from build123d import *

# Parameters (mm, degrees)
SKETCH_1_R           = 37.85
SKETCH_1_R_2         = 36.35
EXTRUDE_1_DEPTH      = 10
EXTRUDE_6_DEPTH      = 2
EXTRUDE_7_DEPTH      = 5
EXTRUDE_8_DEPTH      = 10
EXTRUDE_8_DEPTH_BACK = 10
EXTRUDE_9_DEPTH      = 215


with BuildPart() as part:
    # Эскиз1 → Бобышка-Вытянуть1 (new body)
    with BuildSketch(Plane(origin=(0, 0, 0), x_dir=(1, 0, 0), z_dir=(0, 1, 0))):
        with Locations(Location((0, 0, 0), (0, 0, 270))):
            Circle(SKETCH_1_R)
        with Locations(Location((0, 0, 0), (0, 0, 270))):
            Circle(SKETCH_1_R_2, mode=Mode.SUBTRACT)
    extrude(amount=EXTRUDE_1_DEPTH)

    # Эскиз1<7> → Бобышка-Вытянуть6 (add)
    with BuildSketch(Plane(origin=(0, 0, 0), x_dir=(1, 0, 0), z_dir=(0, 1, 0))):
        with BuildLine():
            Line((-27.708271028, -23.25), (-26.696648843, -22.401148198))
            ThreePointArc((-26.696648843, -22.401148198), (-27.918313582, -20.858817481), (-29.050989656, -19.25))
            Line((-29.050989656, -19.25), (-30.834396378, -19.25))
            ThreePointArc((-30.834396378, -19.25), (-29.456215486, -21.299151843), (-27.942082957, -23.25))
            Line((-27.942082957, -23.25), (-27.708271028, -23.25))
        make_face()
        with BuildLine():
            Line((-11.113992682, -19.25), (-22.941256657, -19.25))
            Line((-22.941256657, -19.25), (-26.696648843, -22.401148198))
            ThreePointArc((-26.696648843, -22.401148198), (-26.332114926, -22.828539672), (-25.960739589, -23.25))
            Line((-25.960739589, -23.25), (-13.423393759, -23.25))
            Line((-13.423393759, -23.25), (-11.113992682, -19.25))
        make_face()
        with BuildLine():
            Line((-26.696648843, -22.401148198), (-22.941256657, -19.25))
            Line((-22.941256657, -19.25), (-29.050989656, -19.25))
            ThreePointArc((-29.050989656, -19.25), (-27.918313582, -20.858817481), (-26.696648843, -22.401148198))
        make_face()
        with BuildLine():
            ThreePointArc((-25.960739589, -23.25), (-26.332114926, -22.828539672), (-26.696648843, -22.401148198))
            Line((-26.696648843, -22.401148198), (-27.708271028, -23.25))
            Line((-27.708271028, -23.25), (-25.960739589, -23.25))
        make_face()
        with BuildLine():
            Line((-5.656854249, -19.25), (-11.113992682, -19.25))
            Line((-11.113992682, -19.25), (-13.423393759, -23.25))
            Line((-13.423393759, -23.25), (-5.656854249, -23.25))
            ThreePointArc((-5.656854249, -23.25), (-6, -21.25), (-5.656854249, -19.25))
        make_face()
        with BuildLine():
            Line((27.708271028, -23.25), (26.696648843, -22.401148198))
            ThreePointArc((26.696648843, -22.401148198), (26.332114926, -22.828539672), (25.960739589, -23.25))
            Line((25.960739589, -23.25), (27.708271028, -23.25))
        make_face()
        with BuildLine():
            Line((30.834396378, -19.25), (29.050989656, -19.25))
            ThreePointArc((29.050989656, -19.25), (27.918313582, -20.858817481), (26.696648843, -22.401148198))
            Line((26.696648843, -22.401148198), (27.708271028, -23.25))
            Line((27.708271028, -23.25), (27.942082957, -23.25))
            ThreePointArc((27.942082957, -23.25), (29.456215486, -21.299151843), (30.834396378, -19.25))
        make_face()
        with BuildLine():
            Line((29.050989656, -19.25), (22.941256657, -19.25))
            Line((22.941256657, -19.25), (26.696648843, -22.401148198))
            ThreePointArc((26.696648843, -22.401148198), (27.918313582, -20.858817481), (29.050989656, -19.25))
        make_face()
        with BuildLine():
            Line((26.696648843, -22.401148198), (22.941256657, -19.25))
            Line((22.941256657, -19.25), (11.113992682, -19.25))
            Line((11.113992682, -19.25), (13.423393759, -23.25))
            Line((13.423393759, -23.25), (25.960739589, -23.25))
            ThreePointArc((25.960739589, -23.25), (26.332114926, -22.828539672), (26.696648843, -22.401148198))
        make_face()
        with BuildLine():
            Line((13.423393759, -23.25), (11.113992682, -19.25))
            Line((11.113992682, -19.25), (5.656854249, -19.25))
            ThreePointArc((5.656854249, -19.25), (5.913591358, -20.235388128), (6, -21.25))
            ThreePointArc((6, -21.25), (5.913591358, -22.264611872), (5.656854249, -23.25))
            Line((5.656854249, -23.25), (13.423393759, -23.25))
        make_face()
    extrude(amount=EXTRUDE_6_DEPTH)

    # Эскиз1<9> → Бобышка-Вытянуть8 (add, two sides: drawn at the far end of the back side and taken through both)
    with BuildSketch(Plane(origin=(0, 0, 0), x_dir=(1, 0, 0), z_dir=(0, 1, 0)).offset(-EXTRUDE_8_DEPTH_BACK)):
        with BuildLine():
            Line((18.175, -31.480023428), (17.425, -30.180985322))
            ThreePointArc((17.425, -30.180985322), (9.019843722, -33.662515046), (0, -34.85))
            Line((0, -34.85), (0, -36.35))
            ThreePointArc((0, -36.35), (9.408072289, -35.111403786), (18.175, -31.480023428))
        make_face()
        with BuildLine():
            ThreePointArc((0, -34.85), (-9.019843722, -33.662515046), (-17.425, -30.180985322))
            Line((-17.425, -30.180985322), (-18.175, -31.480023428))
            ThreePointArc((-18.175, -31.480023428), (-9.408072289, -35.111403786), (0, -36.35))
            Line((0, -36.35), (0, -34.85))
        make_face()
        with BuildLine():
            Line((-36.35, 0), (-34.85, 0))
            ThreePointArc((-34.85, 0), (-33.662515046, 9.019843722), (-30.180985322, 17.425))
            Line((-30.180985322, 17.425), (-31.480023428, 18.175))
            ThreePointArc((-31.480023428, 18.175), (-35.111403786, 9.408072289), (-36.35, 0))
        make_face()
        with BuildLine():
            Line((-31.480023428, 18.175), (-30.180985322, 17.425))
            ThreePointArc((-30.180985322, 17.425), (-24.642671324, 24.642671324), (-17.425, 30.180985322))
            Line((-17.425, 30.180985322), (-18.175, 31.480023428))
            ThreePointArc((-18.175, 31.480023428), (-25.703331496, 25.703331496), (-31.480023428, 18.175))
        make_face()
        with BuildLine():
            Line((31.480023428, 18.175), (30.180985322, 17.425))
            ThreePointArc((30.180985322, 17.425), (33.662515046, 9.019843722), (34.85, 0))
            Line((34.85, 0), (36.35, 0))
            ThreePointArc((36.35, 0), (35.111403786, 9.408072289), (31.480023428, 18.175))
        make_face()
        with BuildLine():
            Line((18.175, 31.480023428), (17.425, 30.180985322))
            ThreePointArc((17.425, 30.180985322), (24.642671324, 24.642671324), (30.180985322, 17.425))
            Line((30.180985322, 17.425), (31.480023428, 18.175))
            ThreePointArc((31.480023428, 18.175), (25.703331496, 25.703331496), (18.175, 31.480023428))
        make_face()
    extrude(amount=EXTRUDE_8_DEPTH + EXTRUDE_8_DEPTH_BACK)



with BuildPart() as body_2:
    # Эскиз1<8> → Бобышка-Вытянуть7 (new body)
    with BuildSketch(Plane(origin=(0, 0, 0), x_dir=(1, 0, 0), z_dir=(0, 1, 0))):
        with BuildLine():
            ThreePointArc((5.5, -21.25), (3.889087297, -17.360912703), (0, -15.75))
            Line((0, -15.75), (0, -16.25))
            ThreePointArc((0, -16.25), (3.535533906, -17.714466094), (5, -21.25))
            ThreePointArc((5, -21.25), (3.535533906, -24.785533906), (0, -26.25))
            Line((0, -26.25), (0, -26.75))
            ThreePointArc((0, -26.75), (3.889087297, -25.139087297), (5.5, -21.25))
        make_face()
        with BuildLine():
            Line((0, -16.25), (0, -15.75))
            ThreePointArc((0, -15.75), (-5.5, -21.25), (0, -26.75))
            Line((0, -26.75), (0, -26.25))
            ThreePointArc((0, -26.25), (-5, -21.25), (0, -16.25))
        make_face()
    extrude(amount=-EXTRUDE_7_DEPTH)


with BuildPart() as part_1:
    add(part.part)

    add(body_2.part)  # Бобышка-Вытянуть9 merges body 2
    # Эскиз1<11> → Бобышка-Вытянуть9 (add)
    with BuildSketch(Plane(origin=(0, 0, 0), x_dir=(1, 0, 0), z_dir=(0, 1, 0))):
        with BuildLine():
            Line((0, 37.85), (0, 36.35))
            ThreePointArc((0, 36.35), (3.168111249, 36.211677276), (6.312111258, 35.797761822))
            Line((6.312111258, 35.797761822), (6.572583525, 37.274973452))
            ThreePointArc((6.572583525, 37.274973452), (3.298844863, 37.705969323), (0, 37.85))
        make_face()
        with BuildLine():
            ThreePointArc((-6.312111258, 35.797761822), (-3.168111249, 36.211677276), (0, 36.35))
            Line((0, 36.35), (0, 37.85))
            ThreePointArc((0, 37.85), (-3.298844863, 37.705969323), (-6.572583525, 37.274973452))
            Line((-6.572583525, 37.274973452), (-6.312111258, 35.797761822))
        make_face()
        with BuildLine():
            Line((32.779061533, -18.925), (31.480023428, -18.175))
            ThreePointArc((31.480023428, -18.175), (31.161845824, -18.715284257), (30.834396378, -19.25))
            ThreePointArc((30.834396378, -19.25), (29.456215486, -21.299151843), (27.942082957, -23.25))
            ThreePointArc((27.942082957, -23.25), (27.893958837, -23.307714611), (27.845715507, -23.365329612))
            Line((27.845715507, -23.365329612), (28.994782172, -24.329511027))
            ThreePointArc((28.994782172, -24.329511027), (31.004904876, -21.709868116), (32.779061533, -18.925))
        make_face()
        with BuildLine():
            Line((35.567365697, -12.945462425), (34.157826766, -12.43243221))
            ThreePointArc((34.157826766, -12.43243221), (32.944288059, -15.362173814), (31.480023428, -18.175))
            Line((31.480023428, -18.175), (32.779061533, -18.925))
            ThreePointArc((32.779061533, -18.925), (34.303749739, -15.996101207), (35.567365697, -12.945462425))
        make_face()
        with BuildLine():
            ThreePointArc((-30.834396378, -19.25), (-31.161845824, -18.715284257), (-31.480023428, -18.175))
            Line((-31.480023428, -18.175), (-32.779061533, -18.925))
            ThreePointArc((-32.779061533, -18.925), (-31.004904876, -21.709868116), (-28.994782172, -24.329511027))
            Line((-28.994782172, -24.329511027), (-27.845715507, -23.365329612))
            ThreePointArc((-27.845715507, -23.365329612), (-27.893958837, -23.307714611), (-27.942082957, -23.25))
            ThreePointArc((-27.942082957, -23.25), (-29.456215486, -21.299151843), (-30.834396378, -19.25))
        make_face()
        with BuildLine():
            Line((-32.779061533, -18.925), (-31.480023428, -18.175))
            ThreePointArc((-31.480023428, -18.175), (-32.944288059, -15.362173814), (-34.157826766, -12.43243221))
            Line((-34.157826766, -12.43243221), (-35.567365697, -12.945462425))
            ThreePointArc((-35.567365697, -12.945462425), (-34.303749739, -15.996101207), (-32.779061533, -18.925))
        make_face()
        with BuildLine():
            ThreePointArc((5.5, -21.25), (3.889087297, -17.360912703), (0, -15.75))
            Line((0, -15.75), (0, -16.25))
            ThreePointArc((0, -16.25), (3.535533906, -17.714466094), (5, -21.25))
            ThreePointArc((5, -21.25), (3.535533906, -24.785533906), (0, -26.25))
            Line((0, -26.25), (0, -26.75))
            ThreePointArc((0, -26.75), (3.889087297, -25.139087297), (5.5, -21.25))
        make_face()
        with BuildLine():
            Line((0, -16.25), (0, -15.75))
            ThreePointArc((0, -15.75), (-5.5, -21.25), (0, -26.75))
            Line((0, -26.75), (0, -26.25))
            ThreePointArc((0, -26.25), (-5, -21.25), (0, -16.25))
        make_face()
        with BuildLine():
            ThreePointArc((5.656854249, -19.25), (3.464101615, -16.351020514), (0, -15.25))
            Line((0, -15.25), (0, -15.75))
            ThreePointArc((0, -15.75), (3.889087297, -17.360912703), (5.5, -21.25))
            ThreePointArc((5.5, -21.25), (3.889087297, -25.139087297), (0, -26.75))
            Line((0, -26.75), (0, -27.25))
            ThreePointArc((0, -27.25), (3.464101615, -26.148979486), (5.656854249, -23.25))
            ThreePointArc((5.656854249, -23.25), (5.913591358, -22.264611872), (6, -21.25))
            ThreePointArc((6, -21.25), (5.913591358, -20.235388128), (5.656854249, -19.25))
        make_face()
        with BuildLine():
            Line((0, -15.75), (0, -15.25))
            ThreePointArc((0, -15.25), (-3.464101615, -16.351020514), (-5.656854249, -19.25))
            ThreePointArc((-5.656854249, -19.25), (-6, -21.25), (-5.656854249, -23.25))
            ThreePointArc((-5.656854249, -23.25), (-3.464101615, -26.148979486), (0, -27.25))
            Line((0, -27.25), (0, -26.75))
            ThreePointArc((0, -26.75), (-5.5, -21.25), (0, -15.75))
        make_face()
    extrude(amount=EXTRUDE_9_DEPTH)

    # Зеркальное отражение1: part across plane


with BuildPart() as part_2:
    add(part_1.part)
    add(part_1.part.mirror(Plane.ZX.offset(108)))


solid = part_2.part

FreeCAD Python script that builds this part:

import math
import FreeCAD as App
import Part
import Sketcher
from FreeCAD import Vector
Q = App.Units.Quantity

doc = App.newDocument("Part")
body = doc.addObject("PartDesign::Body", "Body")

# Sketch on XZ plane
sketch1 = body.newObject("Sketcher::SketchObject", "Sketch")
sketch1.AttachmentSupport = (doc.getObject("XZ_Plane"), [""])
sketch1.MapMode = "FlatFace"
sketch1.addGeometry([
    Part.Circle(Vector(0, 0, 0), Vector(0, 0, 1), 38),
    Part.Circle(Vector(0, 0, 0), Vector(0, 0, 1), 36),
], False)
sketch1.addConstraint([
    Sketcher.Constraint("Coincident", 0, 3, -1, 1),
    Sketcher.Constraint("Coincident", 1, 3, -1, 1),
    Sketcher.Constraint("Diameter", 0, 75.7),
    Sketcher.Constraint("Diameter", 1, 72.7),
])
pad1 = body.newObject("PartDesign::Pad", "Pad")
pad1.Profile = sketch1
pad1.Length = 10
pad1.Reversed = True

# Sketch on XZ plane
sketch2 = body.newObject("Sketcher::SketchObject", "Sketch001")
sketch2.AttachmentSupport = (doc.getObject("XZ_Plane"), [""])
sketch2.MapMode = "FlatFace"
sketch2.addGeometry([
    Part.ArcOfCircle(Part.Circle(Vector(0, 0, 0), Vector(0, 0, 1), 36.3), math.radians(140.24), math.radians(148.02)),  # 0
    Part.LineSegment(Vector(-27.9, 23.2, 0), Vector(-5.7, 23.2, 0)),  # 1
    Part.ArcOfCircle(Part.Circle(Vector(0, 21.2, 0), Vector(0, 0, 1), 6), math.radians(161), math.radians(199)),  # 2
    Part.LineSegment(Vector(-5.7, 19.2, 0), Vector(-30.8, 19.2, 0)),  # 3
    Part.ArcOfCircle(Part.Circle(Vector(0, 0, 0), Vector(0, 0, 1), 36.3), math.radians(31.98), math.radians(39.76)),  # 4
    Part.LineSegment(Vector(30.8, 19.2, 0), Vector(5.7, 19.2, 0)),  # 5
    Part.ArcOfCircle(Part.Circle(Vector(0, 21.2, 0), Vector(0, 0, 1), 6), math.radians(-19.47), math.radians(0)),  # 6
    Part.ArcOfCircle(Part.Circle(Vector(0, 21.3, 0), Vector(0, 0, 1), 6), math.radians(0), math.radians(19.47)),  # 7
    Part.LineSegment(Vector(5.7, 23.2, 0), Vector(27.9, 23.2, 0)),  # 8
], False)
sketch2.addConstraint([
    Sketcher.Constraint("Coincident", 0, 1, 1, 1),
    Sketcher.Constraint("Coincident", 1, 2, 2, 1),
    Sketcher.Constraint("Coincident", 2, 2, 3, 1),
    Sketcher.Constraint("Coincident", 3, 2, 0, 2),
    Sketcher.Constraint("Coincident", 4, 1, 5, 1),
    Sketcher.Constraint("Coincident", 5, 2, 6, 1),
    Sketcher.Constraint("Tangent", 6, 2, 7, 1),
    Sketcher.Constraint("Coincident", 7, 2, 8, 1),
    Sketcher.Constraint("Coincident", 8, 2, 4, 2),
    Sketcher.Constraint("Horizontal", 1),
    Sketcher.Constraint("Horizontal", 3),
    Sketcher.Constraint("Horizontal", 5),
    Sketcher.Constraint("Horizontal", 8),
    Sketcher.Constraint("Coincident", 0, 3, -1, 1),
    Sketcher.Constraint("Coincident", 4, 3, -1, 1),
    Sketcher.Constraint("Coincident", 6, 3, 2, 3),
    Sketcher.Constraint("Equal", 0, 4),
    Sketcher.Constraint("Equal", 2, 6),
    Sketcher.Constraint("Equal", 6, 7),
    Sketcher.Constraint("Symmetric", 2, 2, 5, 2, -2),
    Sketcher.Constraint("Horizontal", 7, 3, 6, 2),
    Sketcher.Constraint("Horizontal", 1, 2, 7, 2),
    Sketcher.Constraint("Vertical", 1, 2, 2, 2),
    Sketcher.Constraint("Radius", 2, 6.0),
    Sketcher.Constraint("Radius", 0, 36.35),
    Sketcher.Constraint("DistanceY", 2, 3, 0, 1, 2.0),
    Sketcher.Constraint("DistanceY", -1, 1, 2, 3, 21.25),
])
pad2 = body.newObject("PartDesign::Pad", "Pad001")
pad2.Profile = sketch2
pad2.Length = 2
pad2.Reversed = True

# Sketch on XZ plane
sketch3 = body.newObject("Sketcher::SketchObject", "Sketch002")
sketch3.AttachmentSupport = (doc.getObject("XZ_Plane"), [""])
sketch3.MapMode = "FlatFace"
sketch3.addGeometry([
    Part.LineSegment(Vector(18.2, 31.5, 0), Vector(17.4, 30.2, 0)),  # 0
    Part.ArcOfCircle(Part.Circle(Vector(0, 0, 0), Vector(0, 0, 1), 34.9), math.radians(60), math.radians(90)),  # 1
    Part.ArcOfCircle(Part.Circle(Vector(0, 0, 0), Vector(0, 0, 1), 34.9), math.radians(90), math.radians(120)),  # 2
    Part.LineSegment(Vector(-17.4, 30.2, 0), Vector(-18.2, 31.5, 0)),  # 3
    Part.ArcOfCircle(Part.Circle(Vector(0, 0, 0), Vector(0, 0, 1), 36.3), math.radians(90), math.radians(120)),  # 4
    Part.ArcOfCircle(Part.Circle(Vector(0, 0, 0), Vector(0, 0, 1), 36.3), math.radians(60), math.radians(90)),  # 5
    Part.LineSegment(Vector(-36.4, 0, 0), Vector(-34.9, 0, 0)),  # 6
    Part.ArcOfCircle(Part.Circle(Vector(0, 0, 0), Vector(0, 0, 1), 34.9), math.radians(-180), math.radians(-150)),  # 7
    Part.ArcOfCircle(Part.Circle(Vector(0, 0, 0), Vector(0, 0, 1), 34.9), math.radians(-150), math.radians(-120)),  # 8
    Part.LineSegment(Vector(-17.4, -30.2, 0), Vector(-18.2, -31.5, 0)),  # 9
    Part.ArcOfCircle(Part.Circle(Vector(0, 0, 0), Vector(0, 0, 1), 36.4), math.radians(-150), math.radians(-120)),  # 10
    Part.ArcOfCircle(Part.Circle(Vector(0, 0, 0), Vector(0, 0, 1), 36.3), math.radians(180), math.radians(210)),  # 11
    Part.ArcOfCircle(Part.Circle(Vector(0, 0, 0), Vector(0, 0, 1), 34.9), math.radians(-30), math.radians(0)),  # 12
    Part.LineSegment(Vector(34.9, 0, 0), Vector(36.4, 0, 0)),  # 13
    Part.ArcOfCircle(Part.Circle(Vector(0, 0, 0), Vector(0, 0, 1), 36.3), math.radians(-30), math.radians(0)),  # 14
    Part.ArcOfCircle(Part.Circle(Vector(0, 0, 0), Vector(0, 0, 1), 36.4), math.radians(-60), math.radians(-30)),  # 15
    Part.LineSegment(Vector(18.2, -31.5, 0), Vector(17.4, -30.2, 0)),  # 16
    Part.ArcOfCircle(Part.Circle(Vector(0, 0, 0), Vector(0, 0, 1), 34.9), math.radians(-60), math.radians(-30)),  # 17
], False)
sketch3.addConstraint([
    Sketcher.Constraint("Coincident", 0, 2, 1, 1),
    Sketcher.Constraint("Tangent", 1, 2, 2, 1),
    Sketcher.Constraint("Coincident", 2, 2, 3, 1),
    Sketcher.Constraint("Coincident", 3, 2, 4, 2),
    Sketcher.Constraint("Tangent", 4, 1, 5, 2),
    Sketcher.Constraint("Coincident", 5, 1, 0, 1),
    Sketcher.Constraint("Coincident", 6, 2, 7, 1),
    Sketcher.Constraint("Tangent", 7, 2, 8, 1),
    Sketcher.Constraint("Coincident", 8, 2, 9, 1),
    Sketcher.Constraint("Coincident", 9, 2, 10, 2),
    Sketcher.Constraint("Tangent", 10, 1, 11, 2),
    Sketcher.Constraint("Coincident", 11, 1, 6, 1),
    Sketcher.Constraint("Coincident", 12, 2, 13, 1),
    Sketcher.Constraint("Coincident", 13, 2, 14, 2),
    Sketcher.Constraint("Tangent", 14, 1, 15, 2),
    Sketcher.Constraint("Coincident", 15, 1, 16, 1),
    Sketcher.Constraint("Coincident", 16, 2, 17, 1),
    Sketcher.Constraint("Tangent", 17, 2, 12, 1),
    Sketcher.Constraint("Horizontal", 6),
    Sketcher.Constraint("Horizontal", 13),
    Sketcher.Constraint("Coincident", 1, 3, -1, 1),
    Sketcher.Constraint("Coincident", 4, 3, -1, 1),
    Sketcher.Constraint("Coincident", 7, 3, -1, 1),
    Sketcher.Constraint("Coincident", 10, 3, -1, 1),
    Sketcher.Constraint("Coincident", 12, 3, -1, 1),
    Sketcher.Constraint("Coincident", 14, 3, -1, 1),
    Sketcher.Constraint("Equal", 1, 2),
    Sketcher.Constraint("Equal", 4, 5),
    Sketcher.Constraint("Equal", 2, 7),
    Sketcher.Constraint("Equal", 7, 8),
    Sketcher.Constraint("Equal", 5, 10),
    Sketcher.Constraint("Equal", 10, 11),
    Sketcher.Constraint("Equal", 8, 12),
    Sketcher.Constraint("Equal", 11, 14),
    Sketcher.Constraint("Equal", 14, 15),
    Sketcher.Constraint("Equal", 12, 17),
    Sketcher.Constraint("PointOnObject", 1, 2, -2),
    Sketcher.Constraint("PointOnObject", 4, 1, -2),
    Sketcher.Constraint("PointOnObject", 6, 2, -1),
    Sketcher.Constraint("PointOnObject", 12, 2, -1),
    Sketcher.Constraint("Parallel", 0, 9),
    Sketcher.Constraint("Parallel", 3, 16),
    Sketcher.Constraint("Horizontal", 0, 2, 2, 2),
    Sketcher.Constraint("Horizontal", 3, 2, 5, 1),
    Sketcher.Constraint("Horizontal", 10, 1, 14, 1),
    Sketcher.Constraint("Horizontal", 9, 2, 15, 1),
    Sketcher.Constraint("Horizontal", 7, 2, 17, 2),
    Sketcher.Constraint("Vertical", 2, 2, 8, 2),
    Sketcher.Constraint("Angle", 0, Q("-120 deg")),
    Sketcher.Constraint("Radius", 1, 34.85),
    Sketcher.Constraint("Radius", 4, 36.35),
    Sketcher.Constraint("DistanceX", 3, 2, 0, 2, 35.6),
    Sketcher.Constraint("DistanceY", 10, 1, 7, 2, 0.75),
    Sketcher.Constraint("DistanceY", 7, 2, -1, 1, 17.425),
])
pad3 = body.newObject("PartDesign::Pad", "Pad002")
pad3.Profile = sketch3
pad3.Type = "TwoLengths"
pad3.Length = 10
pad3.Length2 = 10
pad3.Reversed = True
body2 = doc.addObject("PartDesign::Body", "Body001")

# Sketch on XZ plane
sketch4 = body2.newObject("Sketcher::SketchObject", "Sketch003")
sketch4.AttachmentSupport = (doc.getObject("XZ_Plane001"), [""])
sketch4.MapMode = "FlatFace"
sketch4.addGeometry([
    Part.ArcOfCircle(Part.Circle(Vector(0, 21, 0), Vector(0, 0, 1), 5), math.radians(-90), math.radians(0)),  # 0
    Part.ArcOfCircle(Part.Circle(Vector(0, 21, 0), Vector(0, 0, 1), 6), math.radians(90), math.radians(270)),  # 1
    Part.ArcOfCircle(Part.Circle(Vector(0, 21, 0), Vector(0, 0, 1), 5), math.radians(0), math.radians(90)),  # 2
    Part.ArcOfCircle(Part.Circle(Vector(0, 21, 0), Vector(0, 0, 1), 5), math.radians(0), math.radians(90)),  # 3
    Part.ArcOfCircle(Part.Circle(Vector(0, 21, 0), Vector(0, 0, 1), 5), math.radians(90), math.radians(270)),  # 4
    Part.ArcOfCircle(Part.Circle(Vector(0, 21, 0), Vector(0, 0, 1), 5), math.radians(-90), math.radians(0)),  # 5
], False)
sketch4.addConstraint([
    Sketcher.Constraint("Tangent", 0, 1, 1, 2),
    Sketcher.Constraint("Tangent", 1, 1, 2, 2),
    Sketcher.Constraint("Tangent", 2, 1, 0, 2),
    Sketcher.Constraint("Tangent", 3, 2, 4, 1),
    Sketcher.Constraint("Tangent", 4, 2, 5, 1),
    Sketcher.Constraint("Tangent", 5, 2, 3, 1),
    Sketcher.Constraint("Coincident", 3, 3, 0, 3),
    Sketcher.Constraint("PointOnObject", 0, 3, -2),
    Sketcher.Constraint("PointOnObject", 0, 1, -2),
    Sketcher.Constraint("PointOnObject", 1, 1, -2),
    Sketcher.Constraint("PointOnObject", 3, 2, -2),
    Sketcher.Constraint("PointOnObject", 4, 2, -2),
    Sketcher.Constraint("Horizontal", 5, 3, 2, 1),
    Sketcher.Constraint("Horizontal", 2, 1, 5, 2),
    Sketcher.Constraint("Radius", 3, 5.0),
    Sketcher.Constraint("Radius", 0, 5.5),
    Sketcher.Constraint("DistanceY", -1, 1, 0, 3, 21.25),
])
pad4 = body2.newObject("PartDesign::Pad", "Pad003")
pad4.Profile = sketch4
pad4.Length = 5
body.AllowCompound = True
doc.recompute()

boolean = body.newObject("PartDesign::Boolean", "Boolean")
boolean.Type = "Fuse"
boolean.addObjects([body2])

# Sketch on XZ plane
sketch5 = body.newObject("Sketcher::SketchObject", "Sketch004")
sketch5.AttachmentSupport = (doc.getObject("XZ_Plane"), [""])
sketch5.MapMode = "FlatFace"
sketch5.addGeometry([
    Part.ArcOfCircle(Part.Circle(Vector(0, 0, 0), Vector(0, 0, 1), 36.35), math.radians(-90), math.radians(-80)),  # 0
    Part.LineSegment(Vector(6.31, -35.8, 0), Vector(6.57, -37.27, 0)),  # 1
    Part.ArcOfCircle(Part.Circle(Vector(0, 0, 0), Vector(0, 0, 1), 37.85), math.radians(-90), math.radians(-80)),  # 2
    Part.ArcOfCircle(Part.Circle(Vector(0, 0, 0), Vector(0, 0, 1), 37.85), math.radians(-100), math.radians(-90)),  # 3
    Part.LineSegment(Vector(-6.57, -37.27, 0), Vector(-6.31, -35.8, 0)),  # 4
    Part.ArcOfCircle(Part.Circle(Vector(0, 0, 0), Vector(0, 0, 1), 36.35), math.radians(-100), math.radians(-90)),  # 5
    Part.ArcOfCircle(Part.Circle(Vector(0, 0, 0), Vector(0, 0, 1), 36.35), math.radians(30), math.radians(31.98)),  # 6
    Part.ArcOfCircle(Part.Circle(Vector(0, 0, 0), Vector(0, 0, 1), 36.35), math.radians(31.98), math.radians(39.76)),  # 7
    Part.ArcOfCircle(Part.Circle(Vector(0, 0, 0), Vector(0, 0, 1), 36.35), math.radians(39.76), math.radians(40)),  # 8
    Part.LineSegment(Vector(27.85, 23.37, 0), Vector(28.99, 24.33, 0)),  # 9
    Part.ArcOfCircle(Part.Circle(Vector(0, 0, 0), Vector(0, 0, 1), 37.85), math.radians(30), math.radians(40)),  # 10
    Part.ArcOfCircle(Part.Circle(Vector(0, 0, 0), Vector(0, 0, 1), 37.85), math.radians(20), math.radians(30)),  # 11
    Part.LineSegment(Vector(35.57, 12.95, 0), Vector(34.16, 12.43, 0)),  # 12
    Part.ArcOfCircle(Part.Circle(Vector(0, 0, 0), Vector(0, 0, 1), 36.35), math.radians(20), math.radians(30)),  # 13
    Part.ArcOfCircle(Part.Circle(Vector(0, 0, 0), Vector(0, 0, 1), 36.35), math.radians(148.02), math.radians(150)),  # 14
    Part.ArcOfCircle(Part.Circle(Vector(0, 0, 0), Vector(0, 0, 1), 36.35), math.radians(150), math.radians(160)),  # 15
    Part.LineSegment(Vector(-34.16, 12.43, 0), Vector(-35.57, 12.95, 0)),  # 16
    Part.ArcOfCircle(Part.Circle(Vector(0, 0, 0), Vector(0, 0, 1), 37.85), math.radians(150), math.radians(160)),  # 17
    Part.ArcOfCircle(Part.Circle(Vector(0, 0, 0), Vector(0, 0, 1), 37.85), math.radians(140), math.radians(150)),  # 18
    Part.LineSegment(Vector(-28.99, 24.33, 0), Vector(-27.85, 23.37, 0)),  # 19
    Part.ArcOfCircle(Part.Circle(Vector(0, 0, 0), Vector(0, 0, 1), 36.35), math.radians(140), math.radians(140.24)),  # 20
    Part.ArcOfCircle(Part.Circle(Vector(0, 0, 0), Vector(0, 0, 1), 36.35), math.radians(140.24), math.radians(148.02)),  # 21
    Part.ArcOfCircle(Part.Circle(Vector(0, 21.25, 0), Vector(0, 0, 1), 6), math.radians(-19.47), math.radians(0)),  # 22
    Part.ArcOfCircle(Part.Circle(Vector(0, 21.25, 0), Vector(0, 0, 1), 6), math.radians(-90), math.radians(-19)),  # 23
    Part.ArcOfCircle(Part.Circle(Vector(0, 21.25, 0), Vector(0, 0, 1), 6), math.radians(-161), math.radians(-90)),  # 24
    Part.ArcOfCircle(Part.Circle(Vector(0, 21.25, 0), Vector(0, 0, 1), 6), math.radians(161), math.radians(199)),  # 25
    Part.ArcOfCircle(Part.Circle(Vector(0, 21.25, 0), Vector(0, 0, 1), 6), math.radians(90), math.radians(161)),  # 26
    Part.ArcOfCircle(Part.Circle(Vector(0, 21.25, 0), Vector(0, 0, 1), 6), math.radians(19), math.radians(90)),  # 27
    Part.ArcOfCircle(Part.Circle(Vector(0, 21.25, 0), Vector(0, 0, 1), 6), math.radians(0), math.radians(19.47)),  # 28
    Part.ArcOfCircle(Part.Circle(Vector(0, 21.25, 0), Vector(0, 0, 1), 5), math.radians(90), math.radians(270)),  # 29
    Part.ArcOfCircle(Part.Circle(Vector(0, 21.25, 0), Vector(0, 0, 1), 5), math.radians(-90), math.radians(0)),  # 30
    Part.ArcOfCircle(Part.Circle(Vector(0, 21.25, 0), Vector(0, 0, 1), 5), math.radians(0), math.radians(90)),  # 31
], False)
sketch5.addConstraint([
    Sketcher.Constraint("Coincident", 0, 2, 1, 1),
    Sketcher.Constraint("Coincident", 1, 2, 2, 2),
    Sketcher.Constraint("Tangent", 2, 1, 3, 2),
    Sketcher.Constraint("Coincident", 3, 1, 4, 1),
    Sketcher.Constraint("Coincident", 4, 2, 5, 1),
    Sketcher.Constraint("Tangent", 5, 2, 0, 1),
    Sketcher.Constraint("Tangent", 6, 2, 7, 1),
    Sketcher.Constraint("Tangent", 7, 2, 8, 1),
    Sketcher.Constraint("Coincident", 8, 2, 9, 1),
    Sketcher.Constraint("Coincident", 9, 2, 10, 2),
    Sketcher.Constraint("Tangent", 10, 1, 11, 2),
    Sketcher.Constraint("Coincident", 11, 1, 12, 1),
    Sketcher.Constraint("Coincident", 12, 2, 13, 1),
    Sketcher.Constraint("Tangent", 13, 2, 6, 1),
    Sketcher.Constraint("Tangent", 14, 2, 15, 1),
    Sketcher.Constraint("Coincident", 15, 2, 16, 1),
    Sketcher.Constraint("Coincident", 16, 2, 17, 2),
    Sketcher.Constraint("Tangent", 17, 1, 18, 2),
    Sketcher.Constraint("Coincident", 18, 1, 19, 1),
    Sketcher.Constraint("Coincident", 19, 2, 20, 1),
    Sketcher.Constraint("Tangent", 20, 2, 21, 1),
    Sketcher.Constraint("Tangent", 21, 2, 14, 1),
    Sketcher.Constraint("Tangent", 22, 1, 23, 2),
    Sketcher.Constraint("Tangent", 23, 1, 24, 2),
    Sketcher.Constraint("Tangent", 24, 1, 25, 2),
    Sketcher.Constraint("Tangent", 25, 1, 26, 2),
    Sketcher.Constraint("Tangent", 26, 1, 27, 2),
    Sketcher.Constraint("Tangent", 27, 1, 28, 2),
    Sketcher.Constraint("Tangent", 28, 1, 22, 2),
    Sketcher.Constraint("Tangent", 29, 2, 30, 1),
    Sketcher.Constraint("Tangent", 30, 2, 31, 1),
    Sketcher.Constraint("Tangent", 31, 2, 29, 1),
    Sketcher.Constraint("Coincident", 0, 3, -1, 1),
    Sketcher.Constraint("Coincident", 2, 3, -1, 1),
    Sketcher.Constraint("Coincident", 6, 3, -1, 1),
    Sketcher.Constraint("Coincident", 10, 3, -1, 1),
    Sketcher.Constraint("Coincident", 14, 3, -1, 1),
    Sketcher.Constraint("Coincident", 17, 3, -1, 1),
    Sketcher.Constraint("Coincident", 24, 3, 22, 3),
    Sketcher.Constraint("Coincident", 26, 3, 22, 3),
    Sketcher.Constraint("Coincident", 29, 3, 22, 3),
    Sketcher.Constraint("Equal", 2, 3),
    Sketcher.Constraint("Equal", 0, 5),
    Sketcher.Constraint("Equal", 5, 7),
    Sketcher.Constraint("Equal", 3, 10),
    Sketcher.Constraint("Equal", 10, 11),
    Sketcher.Constraint("Equal", 7, 13),
    Sketcher.Constraint("Equal", 6, 14),
    Sketcher.Constraint("Equal", 13, 15),
    Sketcher.Constraint("Equal", 11, 17),
    Sketcher.Constraint("Equal", 17, 18),
    Sketcher.Constraint("Equal", 8, 20),
    Sketcher.Constraint("Equal", 15, 21),
    Sketcher.Constraint("Symmetric", 22, 1, 24, 1, -2),
    Sketcher.Constraint("PointOnObject", 2, 1, -2),
    Sketcher.Constraint("PointOnObject", 5, 2, -2),
    Sketcher.Constraint("PointOnObject", 23, 1, -2),
    Sketcher.Constraint("PointOnObject", 26, 1, -2),
    Sketcher.Constraint("PointOnObject", 29, 2, -2),
    Sketcher.Constraint("PointOnObject", 31, 2, -2),
    Sketcher.Constraint("Horizontal", 1, 2, 3, 1),
    Sketcher.Constraint("Horizontal", 0, 2, 4, 2),
    Sketcher.Constraint("Horizontal", 13, 2, 14, 2),
    Sketcher.Constraint("Horizontal", 12, 2, 15, 2),
    Sketcher.Constraint("Horizontal", 11, 1, 16, 2),
    Sketcher.Constraint("Horizontal", 10, 1, 17, 1),
    Sketcher.Constraint("Horizontal", 9, 2, 18, 1),
    Sketcher.Constraint("Horizontal", 8, 2, 19, 2),
    Sketcher.Constraint("Horizontal", 7, 2, 20, 2),
    Sketcher.Constraint("Horizontal", 6, 2, 21, 2),
    Sketcher.Constraint("Horizontal", 21, 2, 22, 1),
    Sketcher.Constraint("Horizontal", 20, 2, 25, 1),
    Sketcher.Constraint("Horizontal", 25, 1, 27, 1),
    Sketcher.Constraint("Horizontal", 31, 3, 28, 1),
    Sketcher.Constraint("Horizontal", 28, 1, 30, 2),
    Sketcher.Constraint("Vertical", 21, 3, 22, 3),
    Sketcher.Constraint("Vertical", 24, 1, 25, 1),
    Sketcher.Constraint("Radius", 22, 6.0),
    Sketcher.Constraint("Radius", 29, 5.0),
    Sketcher.Constraint("Angle", 1, Q("-80 deg")),
    Sketcher.Constraint("Angle", 9, Q("40 deg")),
    Sketcher.Constraint("Angle", 12, Q("-160 deg")),
    Sketcher.Constraint("Radius", 0, 36.35),
    Sketcher.Constraint("Radius", 2, 37.85),
    Sketcher.Constraint("DistanceY", 6, 2, 22, 3, 2.0),
    Sketcher.Constraint("DistanceY", -1, 1, 22, 3, 21.25),
    Sketcher.Constraint("DistanceY", 13, 2, 10, 1, 0.75),
    Sketcher.Constraint("DistanceY", -1, 1, 10, 1, 18.925),
    Sketcher.Constraint("Radius", 8, 36.349916),
    Sketcher.Constraint("DistanceX", 7, 2, 9, 2, 1.052699),
    Sketcher.Constraint("DistanceX", -1, 1, 0, 2, 6.312111),
    Sketcher.Constraint("DistanceX", 6, 2, 11, 1, 4.732969),
])
pad5 = body.newObject("PartDesign::Pad", "Pad004")
pad5.Profile = sketch5
pad5.Length = 215
pad5.Reversed = True
body3 = doc.addObject("PartDesign::Body", "Body002")
doc.recompute()

body3.BaseFeature = body
doc.recompute()

mirroring = doc.addObject("Part::Mirroring", "Mirroring")
mirroring.Source = body
mirroring.Base = Vector(0, 108, 0)
mirroring.Normal = Vector(0, 1, 0)
body4 = doc.addObject("PartDesign::Body", "Body003")
body4.BaseFeature = mirroring
boolean2 = body3.newObject("PartDesign::Boolean", "Boolean001")
boolean2.Type = "Fuse"
boolean2.addObjects([body4])
doc.recompute()
mirroring.Visibility = False

doc.recompute()
